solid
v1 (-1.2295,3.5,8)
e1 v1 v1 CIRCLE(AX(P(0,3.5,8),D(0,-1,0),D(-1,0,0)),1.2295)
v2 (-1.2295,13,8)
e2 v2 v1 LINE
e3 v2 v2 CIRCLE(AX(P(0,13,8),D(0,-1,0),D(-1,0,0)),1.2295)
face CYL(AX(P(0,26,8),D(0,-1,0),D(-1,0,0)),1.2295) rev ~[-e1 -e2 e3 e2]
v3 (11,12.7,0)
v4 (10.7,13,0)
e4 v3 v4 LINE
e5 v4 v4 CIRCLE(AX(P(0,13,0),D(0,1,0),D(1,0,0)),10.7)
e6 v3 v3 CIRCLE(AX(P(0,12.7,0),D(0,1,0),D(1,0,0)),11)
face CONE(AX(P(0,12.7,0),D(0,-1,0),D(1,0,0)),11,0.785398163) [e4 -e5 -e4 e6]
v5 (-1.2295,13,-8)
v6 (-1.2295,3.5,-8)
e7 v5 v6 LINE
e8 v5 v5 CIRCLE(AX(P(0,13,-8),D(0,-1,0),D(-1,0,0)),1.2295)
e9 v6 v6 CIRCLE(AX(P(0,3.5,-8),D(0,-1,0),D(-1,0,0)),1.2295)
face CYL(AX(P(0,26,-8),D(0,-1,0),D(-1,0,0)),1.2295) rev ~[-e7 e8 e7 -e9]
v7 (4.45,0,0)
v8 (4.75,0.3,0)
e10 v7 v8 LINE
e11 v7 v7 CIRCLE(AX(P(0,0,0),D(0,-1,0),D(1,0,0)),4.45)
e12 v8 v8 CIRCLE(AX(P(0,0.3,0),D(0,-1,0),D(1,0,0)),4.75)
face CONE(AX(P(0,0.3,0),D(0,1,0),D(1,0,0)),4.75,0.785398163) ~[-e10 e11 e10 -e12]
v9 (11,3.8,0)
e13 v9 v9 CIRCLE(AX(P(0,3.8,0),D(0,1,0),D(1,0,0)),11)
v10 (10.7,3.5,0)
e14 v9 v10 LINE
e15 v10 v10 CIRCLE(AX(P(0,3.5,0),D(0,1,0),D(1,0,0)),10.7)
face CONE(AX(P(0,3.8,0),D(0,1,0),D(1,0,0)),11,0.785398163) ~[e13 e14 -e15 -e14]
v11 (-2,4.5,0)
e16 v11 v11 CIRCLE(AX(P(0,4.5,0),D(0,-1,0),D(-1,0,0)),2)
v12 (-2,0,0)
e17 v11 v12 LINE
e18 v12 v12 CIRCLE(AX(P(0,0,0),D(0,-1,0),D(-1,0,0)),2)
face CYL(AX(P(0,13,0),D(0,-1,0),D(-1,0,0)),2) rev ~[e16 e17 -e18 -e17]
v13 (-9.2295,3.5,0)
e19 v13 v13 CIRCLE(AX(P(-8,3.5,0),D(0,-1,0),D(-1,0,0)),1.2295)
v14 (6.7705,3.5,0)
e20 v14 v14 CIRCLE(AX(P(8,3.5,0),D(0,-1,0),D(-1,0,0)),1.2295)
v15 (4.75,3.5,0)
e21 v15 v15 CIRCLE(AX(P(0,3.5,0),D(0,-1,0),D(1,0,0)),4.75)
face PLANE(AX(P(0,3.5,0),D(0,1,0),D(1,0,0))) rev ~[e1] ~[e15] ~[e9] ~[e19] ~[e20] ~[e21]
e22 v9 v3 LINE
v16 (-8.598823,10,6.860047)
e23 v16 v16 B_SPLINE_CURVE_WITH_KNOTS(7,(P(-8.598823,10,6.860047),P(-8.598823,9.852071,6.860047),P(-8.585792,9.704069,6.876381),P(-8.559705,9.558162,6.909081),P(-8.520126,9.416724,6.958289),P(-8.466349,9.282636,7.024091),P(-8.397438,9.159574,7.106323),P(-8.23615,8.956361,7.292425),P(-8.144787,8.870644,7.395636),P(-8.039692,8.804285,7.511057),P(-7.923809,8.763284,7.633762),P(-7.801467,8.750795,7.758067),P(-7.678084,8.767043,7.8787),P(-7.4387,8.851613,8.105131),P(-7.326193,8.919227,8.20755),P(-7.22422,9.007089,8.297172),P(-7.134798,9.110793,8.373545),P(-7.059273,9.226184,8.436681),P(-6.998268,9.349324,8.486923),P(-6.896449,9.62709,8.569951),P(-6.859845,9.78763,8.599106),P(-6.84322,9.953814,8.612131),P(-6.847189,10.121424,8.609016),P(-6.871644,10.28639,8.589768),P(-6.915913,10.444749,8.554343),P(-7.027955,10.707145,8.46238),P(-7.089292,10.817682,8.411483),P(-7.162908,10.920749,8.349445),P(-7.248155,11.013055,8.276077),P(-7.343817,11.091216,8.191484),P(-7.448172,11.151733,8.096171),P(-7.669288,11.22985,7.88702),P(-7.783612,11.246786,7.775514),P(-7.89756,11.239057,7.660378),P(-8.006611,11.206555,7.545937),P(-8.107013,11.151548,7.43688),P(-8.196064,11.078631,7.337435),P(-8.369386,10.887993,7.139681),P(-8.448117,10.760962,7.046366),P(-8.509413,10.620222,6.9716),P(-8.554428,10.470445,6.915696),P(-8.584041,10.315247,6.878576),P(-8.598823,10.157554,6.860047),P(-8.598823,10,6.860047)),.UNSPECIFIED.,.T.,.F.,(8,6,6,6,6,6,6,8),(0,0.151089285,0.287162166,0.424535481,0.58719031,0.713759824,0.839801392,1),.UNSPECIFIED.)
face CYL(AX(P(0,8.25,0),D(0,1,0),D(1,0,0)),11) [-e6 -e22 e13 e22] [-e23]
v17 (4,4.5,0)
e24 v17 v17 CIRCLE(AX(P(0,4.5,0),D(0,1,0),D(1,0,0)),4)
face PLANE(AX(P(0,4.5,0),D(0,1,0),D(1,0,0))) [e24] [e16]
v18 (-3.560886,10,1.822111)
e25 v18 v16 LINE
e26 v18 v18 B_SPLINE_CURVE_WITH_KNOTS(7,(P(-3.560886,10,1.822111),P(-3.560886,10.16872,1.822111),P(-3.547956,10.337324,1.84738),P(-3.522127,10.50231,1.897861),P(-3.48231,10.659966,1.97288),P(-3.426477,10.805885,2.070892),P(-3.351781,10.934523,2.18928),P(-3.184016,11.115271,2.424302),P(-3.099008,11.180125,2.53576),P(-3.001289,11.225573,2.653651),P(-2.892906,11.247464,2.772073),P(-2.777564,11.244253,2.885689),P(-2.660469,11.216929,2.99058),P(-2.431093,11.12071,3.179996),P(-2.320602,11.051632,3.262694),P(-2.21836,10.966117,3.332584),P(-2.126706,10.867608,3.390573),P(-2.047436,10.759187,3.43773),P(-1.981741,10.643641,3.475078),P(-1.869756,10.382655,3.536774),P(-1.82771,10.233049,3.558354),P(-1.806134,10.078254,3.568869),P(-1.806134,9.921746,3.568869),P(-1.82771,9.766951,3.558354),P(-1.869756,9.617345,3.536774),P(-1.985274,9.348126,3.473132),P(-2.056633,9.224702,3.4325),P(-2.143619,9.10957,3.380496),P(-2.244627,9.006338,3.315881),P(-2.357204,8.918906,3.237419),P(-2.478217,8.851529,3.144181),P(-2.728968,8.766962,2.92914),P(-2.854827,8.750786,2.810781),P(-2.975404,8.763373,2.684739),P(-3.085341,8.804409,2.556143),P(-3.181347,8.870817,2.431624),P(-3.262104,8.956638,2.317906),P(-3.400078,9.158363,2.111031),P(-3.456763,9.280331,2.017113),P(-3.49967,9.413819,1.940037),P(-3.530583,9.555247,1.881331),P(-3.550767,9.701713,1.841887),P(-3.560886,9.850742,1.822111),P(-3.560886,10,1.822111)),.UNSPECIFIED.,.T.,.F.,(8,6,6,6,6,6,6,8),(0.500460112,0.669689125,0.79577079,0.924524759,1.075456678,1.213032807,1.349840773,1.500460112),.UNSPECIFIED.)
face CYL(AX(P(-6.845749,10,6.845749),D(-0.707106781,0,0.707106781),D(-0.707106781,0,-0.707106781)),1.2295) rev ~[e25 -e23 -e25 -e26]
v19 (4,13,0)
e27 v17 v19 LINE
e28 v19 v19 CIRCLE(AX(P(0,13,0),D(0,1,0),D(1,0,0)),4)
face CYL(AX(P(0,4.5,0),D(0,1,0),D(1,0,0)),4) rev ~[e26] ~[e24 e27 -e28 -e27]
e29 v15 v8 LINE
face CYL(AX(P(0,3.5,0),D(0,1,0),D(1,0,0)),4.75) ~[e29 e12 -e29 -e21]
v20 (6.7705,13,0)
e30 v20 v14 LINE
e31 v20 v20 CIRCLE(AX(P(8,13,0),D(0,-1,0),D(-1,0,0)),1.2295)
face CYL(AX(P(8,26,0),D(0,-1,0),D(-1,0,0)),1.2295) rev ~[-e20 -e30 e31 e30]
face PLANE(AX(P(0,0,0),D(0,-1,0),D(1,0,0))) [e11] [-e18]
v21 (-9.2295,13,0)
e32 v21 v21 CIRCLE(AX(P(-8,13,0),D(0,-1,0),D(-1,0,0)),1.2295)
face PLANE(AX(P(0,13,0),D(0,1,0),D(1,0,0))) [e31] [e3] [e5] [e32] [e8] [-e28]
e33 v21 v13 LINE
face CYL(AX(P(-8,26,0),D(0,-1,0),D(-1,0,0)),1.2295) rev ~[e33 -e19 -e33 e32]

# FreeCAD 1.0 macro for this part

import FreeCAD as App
import Part
import Sketcher
Q = App.Units.Quantity


def edges_at(feature, points):
    """Names of the edges that pass closest to the given points."""
    edges = feature.Shape.Edges
    near = lambda p: min(range(len(edges)), key=lambda i: edges[i].distToShape(Part.Vertex(*p))[0])
    return sorted({f"Edge{near(p) + 1}" for p in points})


def add_polygon(sketch, points):
    """Adds a closed chain of lines whose ends are joined by coincident constraints."""
    first, n = sketch.GeometryCount, len(points)
    for a, b in zip(points, points[1:] + points[:1]):
        sketch.addGeometry(Part.LineSegment(App.Vector(*a, 0), App.Vector(*b, 0)), False)
    for i in range(n):
        sketch.addConstraint(Sketcher.Constraint("Coincident", first + i, 2, first + (i + 1) % n, 1))

doc = App.newDocument("Part")
body = doc.addObject("PartDesign::Body", "Body")

# Sketch on XY plane
sketch1 = body.newObject("Sketcher::SketchObject", "Sketch")
sketch1.AttachmentSupport = (doc.getObject("XY_Plane"), [""])
sketch1.MapMode = "FlatFace"
add_polygon(sketch1, [(11, 13), (11, 4), (0, 4), (0, 13)])  # lines 0-3
sketch1.addConstraint([
    Sketcher.Constraint("Vertical", 0),
    Sketcher.Constraint("Horizontal", 1),
    Sketcher.Constraint("Vertical", 2),
    Sketcher.Constraint("Horizontal", 3),
    Sketcher.Constraint("PointOnObject", 1, 2, -2),
    Sketcher.Constraint("DistanceX", 1, 2, 1, 1, 11.0),
    Sketcher.Constraint("DistanceY", 0, 2, 0, 1, 9.5),
    Sketcher.Constraint("DistanceY", -1, 1, 2, 2, 13.0),
])
revolution = body.newObject("PartDesign::Revolution", "Revolution")
revolution.Profile = sketch1
revolution.ReferenceAxis = (sketch1, ["V_Axis"])
revolution.Angle = 360

# Sketch on XZ plane
sketch2 = body.newObject("Sketcher::SketchObject", "Sketch001")
sketch2.AttachmentSupport = (doc.getObject("XZ_Plane"), [""])
sketch2.MapMode = "FlatFace"
sketch2.AttachmentOffset = App.Placement(App.Vector(0, 0, -3.5), App.Rotation())
sketch2.addGeometry(Part.Circle(App.Vector(0, 0, 0), App.Vector(0, 0, 1), 4.8), False)
sketch2.addConstraint([
    Sketcher.Constraint("Coincident", 0, 3, -1, 1),
    Sketcher.Constraint("Diameter", 0, 9.5),
])
pad1 = body.newObject("PartDesign::Pad", "Pad")
pad1.Profile = sketch2
pad1.Length = 3.5

# Sketch on XZ plane
sketch3 = body.newObject("Sketcher::SketchObject", "Sketch002")
sketch3.AttachmentSupport = (doc.getObject("XZ_Plane"), [""])
sketch3.MapMode = "FlatFace"
sketch3.AttachmentOffset = App.Placement(App.Vector(0, 0, -13), App.Rotation())
sketch3.addGeometry([
    Part.Circle(App.Vector(0, -8, 0), App.Vector(0, 0, 1), 1.2),
    Part.Circle(App.Vector(-8, 0, 0), App.Vector(0, 0, 1), 1.2),
    Part.Circle(App.Vector(0, 8, 0), App.Vector(0, 0, 1), 1.2),
    Part.Circle(App.Vector(8, 0, 0), App.Vector(0, 0, 1), 1.2),
], False)
sketch3.addConstraint([
    Sketcher.Constraint("Equal", 0, 1),
    Sketcher.Constraint("Equal", 1, 2),
    Sketcher.Constraint("Equal", 2, 3),
    Sketcher.Constraint("Symmetric", 0, 3, 2, 3, -1, 1),
    Sketcher.Constraint("Symmetric", 1, 3, 3, 3, -1, 1),
    Sketcher.Constraint("PointOnObject", 0, 3, -2),
    Sketcher.Constraint("PointOnObject", 1, 3, -1),
    Sketcher.Constraint("Diameter", 0, 2.459),
    Sketcher.Constraint("DistanceY", 0, 3, -1, 1, 8.0),
    Sketcher.Constraint("DistanceX", 1, 3, -1, 1, 8.0),
])
doc.recompute()
hole = body.newObject("PartDesign::Hole", "Hole")
hole.Profile = sketch3
hole.ThreadType = "None"
hole.Diameter = 2.459
hole.DepthType = "Dimension"
hole.Depth = 13
hole.DrillPoint = "Flat"
hole.Reversed = True

# Sketch on XZ plane
sketch4 = body.newObject("Sketcher::SketchObject", "Sketch003")
sketch4.AttachmentSupport = (doc.getObject("XZ_Plane"), [""])
sketch4.MapMode = "FlatFace"
sketch4.AttachmentOffset = App.Placement(App.Vector(0, 0, -13), App.Rotation())
sketch4.addGeometry(Part.Circle(App.Vector(0, 0, 0), App.Vector(0, 0, 1), 2), False)
sketch4.addConstraint([
    Sketcher.Constraint("Coincident", 0, 3, -1, 1),
    Sketcher.Constraint("Diameter", 0, 4.0),
])
doc.recompute()
hole2 = body.newObject("PartDesign::Hole", "Hole001")
hole2.Profile = sketch4
hole2.ThreadType = "None"
hole2.Diameter = 4
hole2.DepthType = "Dimension"
hole2.Depth = 13
hole2.DrillPoint = "Flat"
hole2.HoleCutType = "Counterbore"
hole2.HoleCutDiameter = 8
hole2.HoleCutDepth = 8.5
hole2.Reversed = True

# Sketch on XZ plane
sketch5 = body.newObject("Sketcher::SketchObject", "Sketch004")
sketch5.AttachmentSupport = (doc.getObject("XZ_Plane"), [""])
sketch5.MapMode = "FlatFace"
sketch5.AttachmentOffset = App.Placement(App.Vector(0, 0, -10), App.Rotation())
add_polygon(sketch5, [(-11, 11), (-2.7, 2.7), (-3.6, 1.8), (-11.9, 10.1)])  # lines 0-3
sketch5.addGeometry(Part.LineSegment(App.Vector(-2.7, 2.7, 0), App.Vector(-11, 11, 0)), True)  # axis
sketch5.addConstraint([
    Sketcher.Constraint("Coincident", 4, 1, 0, 2),
    Sketcher.Constraint("Coincident", 4, 2, 3, 2),
    Sketcher.Constraint("Perpendicular", 0, 1),
    Sketcher.Constraint("Perpendicular", 1, 2),
    Sketcher.Constraint("Perpendicular", 2, 3),
    Sketcher.Constraint("Angle", 0, Q("-45 deg")),
    Sketcher.Constraint("DistanceX", 3, 2, -1, 1, 11.0),
    Sketcher.Constraint("DistanceY", -1, 1, 3, 2, 11.0),
    Sketcher.Constraint("Distance", 1, 1.2295),
    Sketcher.Constraint("DistanceX", 0, 2, -1, 1, 2.691499),
])
groove = body.newObject("PartDesign::Groove", "Groove")
groove.Profile = sketch5
groove.ReferenceAxis = (sketch5, ["Axis0"])
groove.Angle = 360
doc.recompute()

chamfer = body.newObject("PartDesign::Chamfer", "Chamfer")
chamfer.Base = (groove, edges_at(groove, [(-11, 13, 0), (-11, 3.5, 0), (-4.75, 0, 0)]))
chamfer.Size = 0.3

doc.recompute()
